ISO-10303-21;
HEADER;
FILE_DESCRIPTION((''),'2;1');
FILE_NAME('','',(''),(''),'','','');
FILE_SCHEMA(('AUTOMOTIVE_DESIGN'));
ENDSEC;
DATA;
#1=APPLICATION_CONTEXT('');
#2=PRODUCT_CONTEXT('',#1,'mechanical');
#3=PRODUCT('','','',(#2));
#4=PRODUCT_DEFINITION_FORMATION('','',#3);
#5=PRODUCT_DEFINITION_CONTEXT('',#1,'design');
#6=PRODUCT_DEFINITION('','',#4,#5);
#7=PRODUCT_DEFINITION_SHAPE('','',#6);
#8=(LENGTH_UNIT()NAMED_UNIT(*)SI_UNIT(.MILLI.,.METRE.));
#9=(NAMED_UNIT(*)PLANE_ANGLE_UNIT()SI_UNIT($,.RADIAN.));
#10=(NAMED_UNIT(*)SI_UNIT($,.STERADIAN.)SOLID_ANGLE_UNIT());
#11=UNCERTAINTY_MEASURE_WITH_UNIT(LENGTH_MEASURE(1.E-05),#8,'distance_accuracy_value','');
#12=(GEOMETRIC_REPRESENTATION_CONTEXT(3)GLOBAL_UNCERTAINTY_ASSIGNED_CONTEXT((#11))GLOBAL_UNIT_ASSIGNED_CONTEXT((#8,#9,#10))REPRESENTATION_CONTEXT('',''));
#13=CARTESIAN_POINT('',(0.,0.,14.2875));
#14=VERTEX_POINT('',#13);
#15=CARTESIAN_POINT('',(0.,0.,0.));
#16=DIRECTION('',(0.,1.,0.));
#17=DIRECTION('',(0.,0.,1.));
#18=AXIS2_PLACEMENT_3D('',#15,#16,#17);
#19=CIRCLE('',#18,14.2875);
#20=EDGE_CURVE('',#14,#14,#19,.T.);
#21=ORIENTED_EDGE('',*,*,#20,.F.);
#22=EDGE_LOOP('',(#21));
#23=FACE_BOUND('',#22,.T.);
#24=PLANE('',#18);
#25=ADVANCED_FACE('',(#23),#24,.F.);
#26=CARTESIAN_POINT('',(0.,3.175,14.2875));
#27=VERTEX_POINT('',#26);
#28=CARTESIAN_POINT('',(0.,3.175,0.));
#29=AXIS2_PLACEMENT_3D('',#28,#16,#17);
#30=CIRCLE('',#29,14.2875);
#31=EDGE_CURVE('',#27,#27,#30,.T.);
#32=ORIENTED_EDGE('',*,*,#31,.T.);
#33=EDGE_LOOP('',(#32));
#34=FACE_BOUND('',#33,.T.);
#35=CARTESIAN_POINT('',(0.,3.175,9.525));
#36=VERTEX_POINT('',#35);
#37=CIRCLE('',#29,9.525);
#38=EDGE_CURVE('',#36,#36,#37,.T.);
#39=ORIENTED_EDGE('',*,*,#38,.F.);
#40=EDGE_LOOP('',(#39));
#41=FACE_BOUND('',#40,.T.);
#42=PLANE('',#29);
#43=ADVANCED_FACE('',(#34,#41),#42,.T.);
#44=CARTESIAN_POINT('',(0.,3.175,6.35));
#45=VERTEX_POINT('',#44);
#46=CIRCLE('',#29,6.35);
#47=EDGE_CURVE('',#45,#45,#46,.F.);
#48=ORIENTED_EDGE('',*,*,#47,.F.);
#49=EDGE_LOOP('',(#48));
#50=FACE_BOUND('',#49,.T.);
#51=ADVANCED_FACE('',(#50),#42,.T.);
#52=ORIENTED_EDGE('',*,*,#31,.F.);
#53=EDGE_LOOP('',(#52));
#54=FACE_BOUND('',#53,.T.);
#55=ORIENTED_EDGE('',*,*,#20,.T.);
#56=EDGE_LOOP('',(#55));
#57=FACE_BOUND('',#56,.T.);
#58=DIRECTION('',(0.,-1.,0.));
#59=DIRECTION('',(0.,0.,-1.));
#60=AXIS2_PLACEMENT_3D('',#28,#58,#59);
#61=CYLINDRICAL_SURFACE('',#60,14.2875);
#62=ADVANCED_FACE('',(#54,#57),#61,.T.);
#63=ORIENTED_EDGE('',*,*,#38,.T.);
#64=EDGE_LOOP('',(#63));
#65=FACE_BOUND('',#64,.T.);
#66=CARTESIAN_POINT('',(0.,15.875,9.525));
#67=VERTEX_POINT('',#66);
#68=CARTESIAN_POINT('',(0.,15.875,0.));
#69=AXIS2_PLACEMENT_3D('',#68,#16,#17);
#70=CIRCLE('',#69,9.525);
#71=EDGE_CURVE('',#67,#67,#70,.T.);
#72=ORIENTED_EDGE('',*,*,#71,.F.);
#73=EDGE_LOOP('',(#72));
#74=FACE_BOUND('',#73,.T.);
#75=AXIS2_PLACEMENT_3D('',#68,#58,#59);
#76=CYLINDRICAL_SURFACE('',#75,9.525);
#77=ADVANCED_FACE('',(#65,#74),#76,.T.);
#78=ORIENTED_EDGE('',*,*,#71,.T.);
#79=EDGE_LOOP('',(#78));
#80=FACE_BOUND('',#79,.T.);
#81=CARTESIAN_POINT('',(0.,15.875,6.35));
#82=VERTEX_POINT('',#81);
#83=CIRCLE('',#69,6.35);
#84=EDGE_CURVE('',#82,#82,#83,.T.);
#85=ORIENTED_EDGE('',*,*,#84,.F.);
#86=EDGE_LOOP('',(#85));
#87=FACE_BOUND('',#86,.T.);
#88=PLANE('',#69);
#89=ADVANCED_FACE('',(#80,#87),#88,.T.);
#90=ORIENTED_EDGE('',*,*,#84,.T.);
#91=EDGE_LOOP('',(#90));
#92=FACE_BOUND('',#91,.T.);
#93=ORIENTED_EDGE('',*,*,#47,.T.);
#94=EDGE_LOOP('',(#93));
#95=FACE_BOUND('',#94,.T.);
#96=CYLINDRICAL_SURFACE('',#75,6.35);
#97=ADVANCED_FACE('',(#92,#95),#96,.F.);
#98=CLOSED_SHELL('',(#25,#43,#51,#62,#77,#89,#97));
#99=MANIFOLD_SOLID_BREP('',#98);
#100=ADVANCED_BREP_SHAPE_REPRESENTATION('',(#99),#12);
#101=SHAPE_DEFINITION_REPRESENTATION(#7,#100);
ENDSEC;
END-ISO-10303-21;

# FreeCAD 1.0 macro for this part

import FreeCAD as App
import Part
import Sketcher

V = App.Vector
Q = App.Units.Quantity

doc = App.newDocument("Part")
params = doc.addObject("Spreadsheet::Sheet", "Params")
for row, (alias, value) in enumerate([
    ("sketch1_diameter", "1.125 in"),
    ("pad1_length", "0.125 in"),
    ("sketch2_diameter", "0.5 in"),
    ("sketch2_diameter2", "0.75 in"),
    ("pad2_length", "0.5 in"),
], start=1):
    params.set(f"A{row}", alias)
    params.set(f"B{row}", "=" + value)
    params.setAlias(f"B{row}", alias)

body = doc.addObject("PartDesign::Body", "Body")

# Sketch on XZ plane
sketch1 = body.newObject("Sketcher::SketchObject", "Sketch")
sketch1.AttachmentSupport = (doc.getObject("XZ_Plane"), [""])
sketch1.MapMode = "FlatFace"
sketch1.addGeometry(Part.Circle(V(0, 0, 0), V(0, 0, 1), 14.2875), False)
sketch1.addConstraint(Sketcher.Constraint("Coincident", 0, 3, -1, 1))
sketch1.addConstraint(Sketcher.Constraint("Diameter", 0, Q("1.125 in")))
sketch1.setExpression("Constraints[1]", "Params.sketch1_diameter")
pad1 = body.newObject("PartDesign::Pad", "Pad")
pad1.Profile = sketch1
pad1.setExpression("Length", "Params.pad1_length")
pad1.Reversed = True

# Sketch on XZ plane
sketch2 = body.newObject("Sketcher::SketchObject", "Sketch001")
sketch2.AttachmentSupport = (doc.getObject("XZ_Plane"), [""])
sketch2.MapMode = "FlatFace"
sketch2.AttachmentOffset = App.Placement(V(0, 0, -0.125 * 25.4), App.Rotation())
sketch2.addGeometry(Part.Circle(V(0, 0, 0), V(0, 0, 1), 9.525), False)
sketch2.addGeometry(Part.Circle(V(0, 0, 0), V(0, 0, 1), 6.35), False)
sketch2.addConstraint(Sketcher.Constraint("Coincident", 0, 3, -1, 1))
sketch2.addConstraint(Sketcher.Constraint("Coincident", 1, 3, -1, 1))
sketch2.addConstraint(Sketcher.Constraint("Diameter", 1, Q("0.5 in")))
sketch2.addConstraint(Sketcher.Constraint("Diameter", 0, Q("0.75 in")))
sketch2.setExpression("Constraints[2]", "Params.sketch2_diameter")
sketch2.setExpression("Constraints[3]", "Params.sketch2_diameter2")
pad2 = body.newObject("PartDesign::Pad", "Pad001")
pad2.Profile = sketch2
pad2.setExpression("Length", "Params.pad2_length")
pad2.Reversed = True

doc.recompute()
